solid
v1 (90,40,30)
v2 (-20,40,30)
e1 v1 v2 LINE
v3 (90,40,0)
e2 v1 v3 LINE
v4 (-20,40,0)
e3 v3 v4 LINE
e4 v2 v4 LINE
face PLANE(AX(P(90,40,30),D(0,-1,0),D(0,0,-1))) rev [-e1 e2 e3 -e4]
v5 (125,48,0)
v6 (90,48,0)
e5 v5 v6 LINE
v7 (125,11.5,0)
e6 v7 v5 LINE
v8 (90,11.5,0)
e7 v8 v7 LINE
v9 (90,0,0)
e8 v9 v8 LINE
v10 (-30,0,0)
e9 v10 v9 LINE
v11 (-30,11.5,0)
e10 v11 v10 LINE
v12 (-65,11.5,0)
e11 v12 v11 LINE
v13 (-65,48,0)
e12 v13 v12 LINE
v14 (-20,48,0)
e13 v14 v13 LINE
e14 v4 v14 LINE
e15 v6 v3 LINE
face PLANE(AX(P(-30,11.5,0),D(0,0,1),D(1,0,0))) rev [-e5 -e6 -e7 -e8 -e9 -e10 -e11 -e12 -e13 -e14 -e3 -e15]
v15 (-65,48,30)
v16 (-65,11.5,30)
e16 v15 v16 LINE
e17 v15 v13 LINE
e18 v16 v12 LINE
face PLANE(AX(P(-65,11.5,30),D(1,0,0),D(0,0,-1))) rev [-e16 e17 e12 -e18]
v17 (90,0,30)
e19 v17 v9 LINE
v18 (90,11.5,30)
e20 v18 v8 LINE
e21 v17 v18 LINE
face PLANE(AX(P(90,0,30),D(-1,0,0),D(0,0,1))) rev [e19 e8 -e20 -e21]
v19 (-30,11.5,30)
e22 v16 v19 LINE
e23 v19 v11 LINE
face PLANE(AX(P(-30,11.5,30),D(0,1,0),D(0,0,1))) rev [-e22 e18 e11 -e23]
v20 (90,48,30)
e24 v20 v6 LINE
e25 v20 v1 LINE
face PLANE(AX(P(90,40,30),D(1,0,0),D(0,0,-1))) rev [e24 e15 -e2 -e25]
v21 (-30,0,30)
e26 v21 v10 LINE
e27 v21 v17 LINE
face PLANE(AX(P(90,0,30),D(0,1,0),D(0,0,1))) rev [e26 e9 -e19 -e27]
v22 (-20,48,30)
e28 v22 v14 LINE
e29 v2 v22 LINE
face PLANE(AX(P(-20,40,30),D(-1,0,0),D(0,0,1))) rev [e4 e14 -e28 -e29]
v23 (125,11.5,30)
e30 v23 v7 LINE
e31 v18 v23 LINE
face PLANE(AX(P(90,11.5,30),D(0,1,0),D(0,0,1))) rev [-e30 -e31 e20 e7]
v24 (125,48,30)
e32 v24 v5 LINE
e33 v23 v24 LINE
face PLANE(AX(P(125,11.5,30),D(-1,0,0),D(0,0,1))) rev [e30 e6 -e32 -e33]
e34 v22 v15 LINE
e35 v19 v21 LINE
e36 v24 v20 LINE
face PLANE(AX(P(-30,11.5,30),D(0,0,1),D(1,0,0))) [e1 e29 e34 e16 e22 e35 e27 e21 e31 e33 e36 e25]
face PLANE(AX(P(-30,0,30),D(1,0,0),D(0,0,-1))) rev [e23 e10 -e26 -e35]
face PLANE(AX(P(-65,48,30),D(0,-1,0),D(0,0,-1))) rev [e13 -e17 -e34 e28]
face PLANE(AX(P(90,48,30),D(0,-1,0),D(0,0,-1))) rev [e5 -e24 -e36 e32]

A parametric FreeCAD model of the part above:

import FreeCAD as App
import Part
import Sketcher

V = App.Vector
Q = App.Units.Quantity

doc = App.newDocument("Part")
body = doc.addObject("PartDesign::Body", "Body")

# Sketch on XY plane
sketch1 = body.newObject("Sketcher::SketchObject", "Sketch")
sketch1.AttachmentSupport = (doc.getObject("XY_Plane"), [""])
sketch1.MapMode = "FlatFace"
sketch1.addGeometry(Part.LineSegment(V(-30, 0, 0), V(90, 0, 0)), False)
sketch1.addGeometry(Part.LineSegment(V(90, 0, 0), V(90, 12, 0)), False)
sketch1.addGeometry(Part.LineSegment(V(90, 12, 0), V(125, 12, 0)), False)
sketch1.addGeometry(Part.LineSegment(V(125, 12, 0), V(125, 48, 0)), False)
sketch1.addGeometry(Part.LineSegment(V(125, 48, 0), V(90, 48, 0)), False)
sketch1.addGeometry(Part.LineSegment(V(90, 48, 0), V(90, 40, 0)), False)
sketch1.addGeometry(Part.LineSegment(V(90, 40, 0), V(-20, 40, 0)), False)
sketch1.addGeometry(Part.LineSegment(V(-20, 40, 0), V(-20, 48, 0)), False)
sketch1.addGeometry(Part.LineSegment(V(-20, 48, 0), V(-65, 48, 0)), False)
sketch1.addGeometry(Part.LineSegment(V(-65, 48, 0), V(-65, 12, 0)), False)
sketch1.addGeometry(Part.LineSegment(V(-65, 12, 0), V(-30, 12, 0)), False)
sketch1.addGeometry(Part.LineSegment(V(-30, 12, 0), V(-30, 0, 0)), False)
sketch1.addConstraint(Sketcher.Constraint("Coincident", 0, 2, 1, 1))
sketch1.addConstraint(Sketcher.Constraint("Coincident", 1, 2, 2, 1))
sketch1.addConstraint(Sketcher.Constraint("Coincident", 2, 2, 3, 1))
sketch1.addConstraint(Sketcher.Constraint("Coincident", 3, 2, 4, 1))
sketch1.addConstraint(Sketcher.Constraint("Coincident", 4, 2, 5, 1))
sketch1.addConstraint(Sketcher.Constraint("Coincident", 5, 2, 6, 1))
sketch1.addConstraint(Sketcher.Constraint("Coincident", 6, 2, 7, 1))
sketch1.addConstraint(Sketcher.Constraint("Coincident", 7, 2, 8, 1))
sketch1.addConstraint(Sketcher.Constraint("Coincident", 8, 2, 9, 1))
sketch1.addConstraint(Sketcher.Constraint("Coincident", 9, 2, 10, 1))
sketch1.addConstraint(Sketcher.Constraint("Coincident", 10, 2, 11, 1))
sketch1.addConstraint(Sketcher.Constraint("Coincident", 11, 2, 0, 1))
sketch1.addConstraint(Sketcher.Constraint("Horizontal", 0))
sketch1.addConstraint(Sketcher.Constraint("Vertical", 1))
sketch1.addConstraint(Sketcher.Constraint("Horizontal", 2))
sketch1.addConstraint(Sketcher.Constraint("Vertical", 3))
sketch1.addConstraint(Sketcher.Constraint("Horizontal", 4))
sketch1.addConstraint(Sketcher.Constraint("Vertical", 5))
sketch1.addConstraint(Sketcher.Constraint("Horizontal", 6))
sketch1.addConstraint(Sketcher.Constraint("Vertical", 7))
sketch1.addConstraint(Sketcher.Constraint("Horizontal", 8))
sketch1.addConstraint(Sketcher.Constraint("Vertical", 9))
sketch1.addConstraint(Sketcher.Constraint("Horizontal", 10))
sketch1.addConstraint(Sketcher.Constraint("Vertical", 11))
sketch1.addConstraint(Sketcher.Constraint("PointOnObject", 0, 2, -1))
sketch1.addConstraint(Sketcher.Constraint("Horizontal", 4, 2, 7, 2))
sketch1.addConstraint(Sketcher.Constraint("Horizontal", 2, 2, 9, 2))
sketch1.addConstraint(Sketcher.Constraint("Vertical", 1, 2, 4, 2))
sketch1.addConstraint(Sketcher.Constraint("Equal", 4, 10))
sketch1.addConstraint(Sketcher.Constraint("DistanceX", 0, 1, 0, 2, Q("120 mm")))
sketch1.addConstraint(Sketcher.Constraint("DistanceX", 2, 1, 2, 2, Q("35 mm")))
sketch1.addConstraint(Sketcher.Constraint("DistanceX", 6, 2, 6, 1, Q("110 mm")))
sketch1.addConstraint(Sketcher.Constraint("DistanceY", 5, 2, 5, 1, Q("8 mm")))
sketch1.addConstraint(Sketcher.Constraint("DistanceY", 1, 1, 1, 2, Q("11.5 mm")))
sketch1.addConstraint(Sketcher.Constraint("DistanceY", 3, 1, 3, 2, Q("36.5 mm")))
sketch1.addConstraint(Sketcher.Constraint("DistanceX", -1, 1, 0, 2, Q("90 mm")))
pad1 = body.newObject("PartDesign::Pad", "Pad")
pad1.Profile = sketch1
pad1.Length = 30

doc.recompute()
